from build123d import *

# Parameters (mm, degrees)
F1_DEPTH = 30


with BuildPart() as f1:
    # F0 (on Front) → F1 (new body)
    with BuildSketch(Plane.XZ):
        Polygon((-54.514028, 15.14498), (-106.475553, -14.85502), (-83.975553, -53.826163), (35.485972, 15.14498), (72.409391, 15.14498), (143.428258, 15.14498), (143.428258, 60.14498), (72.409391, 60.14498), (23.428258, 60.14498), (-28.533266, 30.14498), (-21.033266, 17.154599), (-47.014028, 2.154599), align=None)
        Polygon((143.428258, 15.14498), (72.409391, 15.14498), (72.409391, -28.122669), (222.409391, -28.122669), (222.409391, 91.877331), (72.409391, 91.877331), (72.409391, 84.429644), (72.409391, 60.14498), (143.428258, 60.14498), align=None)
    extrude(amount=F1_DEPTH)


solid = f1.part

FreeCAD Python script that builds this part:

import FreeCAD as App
import Part
import Sketcher
Q = App.Units.Quantity


def add_polygon(sketch, points):
    """Adds a closed chain of lines whose ends are joined by coincident constraints."""
    first, n = sketch.GeometryCount, len(points)
    for a, b in zip(points, points[1:] + points[:1]):
        sketch.addGeometry(Part.LineSegment(App.Vector(*a, 0), App.Vector(*b, 0)), False)
    for i in range(n):
        sketch.addConstraint(Sketcher.Constraint("Coincident", first + i, 2, first + (i + 1) % n, 1))

doc = App.newDocument("Part")
params = doc.addObject("Spreadsheet::Sheet", "Params")
for row, (alias, value) in enumerate([
    ("sketch1_width", "150 mm"),
    ("sketch1_height", "120 mm"),
    ("sketch1_length", "60.000001 mm"),
    ("sketch1_length2", "45 mm"),
    ("sketch1_length3", "15 mm"),
    ("pad1_length", "30 mm"),
], start=1):
    params.set(f"A{row}", alias)
    params.set(f"B{row}", "=" + value)
    params.setAlias(f"B{row}", alias)

body = doc.addObject("PartDesign::Body", "Body")

sketch1 = doc.addObject("Sketcher::SketchObject", "Sketch")
body.addObject(sketch1)
sketch1.AttachmentSupport = (doc.XZ_Plane, [""])
sketch1.MapMode = "FlatFace"
add_polygon(sketch1, [(-55, 15), (-106, -15), (-84, -54), (35, 15), (72, 15), (72, -28), (222, -28), (222, 92), (72, 92), (72, 60), (23, 60), (-29, 30), (-21, 17), (-47, 2)])
sketch1.addConstraint([
    Sketcher.Constraint("Horizontal", 3),
    Sketcher.Constraint("Vertical", 4),
    Sketcher.Constraint("Horizontal", 5),
    Sketcher.Constraint("Vertical", 6),
    Sketcher.Constraint("Horizontal", 7),
    Sketcher.Constraint("Vertical", 8),
    Sketcher.Constraint("Horizontal", 9),
    Sketcher.Constraint("Perpendicular", 0, 1),
    Sketcher.Constraint("Perpendicular", 1, 2),
    Sketcher.Constraint("Parallel", 2, 10),
    Sketcher.Constraint("Perpendicular", 10, 11),
    Sketcher.Constraint("Perpendicular", 11, 12),
    Sketcher.Constraint("Perpendicular", 12, 13),
    Sketcher.Constraint("Horizontal", 3, 2, 13, 2),
    Sketcher.Constraint("Vertical", 4, 2, 7, 2),
    Sketcher.Constraint("Equal", 0, 10),
    Sketcher.Constraint("Equal", 11, 13),
    Sketcher.Constraint("DistanceX", 5, 1, 5, 2, Q("150 mm")),
    Sketcher.Constraint("DistanceY", 6, 1, 6, 2, Q("120 mm")),
    Sketcher.Constraint("Angle", 0, Q("-150 deg")),
    Sketcher.Constraint("Distance", 0, Q("60.000001 mm")),
    Sketcher.Constraint("Distance", 1, Q("45 mm")),
    Sketcher.Constraint("Distance", 11, Q("15 mm")),
    Sketcher.Constraint("Distance", 12, Q("30 mm")),
    Sketcher.Constraint("DistanceX", 3, 1, 3, 2, Q("36.923419 mm")),
    Sketcher.Constraint("DistanceY", 4, 2, 4, 1, Q("43.267649 mm")),
    Sketcher.Constraint("DistanceY", -1, 1, 11, 2, Q("17.154599 mm")),
    Sketcher.Constraint("DistanceX", -1, 1, 2, 2, Q("35.485972 mm")),
])
sketch1.setExpression("Constraints[31]", "Params.sketch1_width")
sketch1.setExpression("Constraints[32]", "Params.sketch1_height")
sketch1.setExpression("Constraints[34]", "Params.sketch1_length")
sketch1.setExpression("Constraints[35]", "Params.sketch1_length2")
sketch1.setExpression("Constraints[36]", "Params.sketch1_length3")
pad1 = doc.addObject("PartDesign::Pad", "Pad")
body.addObject(pad1)
pad1.Profile = sketch1
pad1.setExpression("Length", "Params.pad1_length")

doc.recompute()
